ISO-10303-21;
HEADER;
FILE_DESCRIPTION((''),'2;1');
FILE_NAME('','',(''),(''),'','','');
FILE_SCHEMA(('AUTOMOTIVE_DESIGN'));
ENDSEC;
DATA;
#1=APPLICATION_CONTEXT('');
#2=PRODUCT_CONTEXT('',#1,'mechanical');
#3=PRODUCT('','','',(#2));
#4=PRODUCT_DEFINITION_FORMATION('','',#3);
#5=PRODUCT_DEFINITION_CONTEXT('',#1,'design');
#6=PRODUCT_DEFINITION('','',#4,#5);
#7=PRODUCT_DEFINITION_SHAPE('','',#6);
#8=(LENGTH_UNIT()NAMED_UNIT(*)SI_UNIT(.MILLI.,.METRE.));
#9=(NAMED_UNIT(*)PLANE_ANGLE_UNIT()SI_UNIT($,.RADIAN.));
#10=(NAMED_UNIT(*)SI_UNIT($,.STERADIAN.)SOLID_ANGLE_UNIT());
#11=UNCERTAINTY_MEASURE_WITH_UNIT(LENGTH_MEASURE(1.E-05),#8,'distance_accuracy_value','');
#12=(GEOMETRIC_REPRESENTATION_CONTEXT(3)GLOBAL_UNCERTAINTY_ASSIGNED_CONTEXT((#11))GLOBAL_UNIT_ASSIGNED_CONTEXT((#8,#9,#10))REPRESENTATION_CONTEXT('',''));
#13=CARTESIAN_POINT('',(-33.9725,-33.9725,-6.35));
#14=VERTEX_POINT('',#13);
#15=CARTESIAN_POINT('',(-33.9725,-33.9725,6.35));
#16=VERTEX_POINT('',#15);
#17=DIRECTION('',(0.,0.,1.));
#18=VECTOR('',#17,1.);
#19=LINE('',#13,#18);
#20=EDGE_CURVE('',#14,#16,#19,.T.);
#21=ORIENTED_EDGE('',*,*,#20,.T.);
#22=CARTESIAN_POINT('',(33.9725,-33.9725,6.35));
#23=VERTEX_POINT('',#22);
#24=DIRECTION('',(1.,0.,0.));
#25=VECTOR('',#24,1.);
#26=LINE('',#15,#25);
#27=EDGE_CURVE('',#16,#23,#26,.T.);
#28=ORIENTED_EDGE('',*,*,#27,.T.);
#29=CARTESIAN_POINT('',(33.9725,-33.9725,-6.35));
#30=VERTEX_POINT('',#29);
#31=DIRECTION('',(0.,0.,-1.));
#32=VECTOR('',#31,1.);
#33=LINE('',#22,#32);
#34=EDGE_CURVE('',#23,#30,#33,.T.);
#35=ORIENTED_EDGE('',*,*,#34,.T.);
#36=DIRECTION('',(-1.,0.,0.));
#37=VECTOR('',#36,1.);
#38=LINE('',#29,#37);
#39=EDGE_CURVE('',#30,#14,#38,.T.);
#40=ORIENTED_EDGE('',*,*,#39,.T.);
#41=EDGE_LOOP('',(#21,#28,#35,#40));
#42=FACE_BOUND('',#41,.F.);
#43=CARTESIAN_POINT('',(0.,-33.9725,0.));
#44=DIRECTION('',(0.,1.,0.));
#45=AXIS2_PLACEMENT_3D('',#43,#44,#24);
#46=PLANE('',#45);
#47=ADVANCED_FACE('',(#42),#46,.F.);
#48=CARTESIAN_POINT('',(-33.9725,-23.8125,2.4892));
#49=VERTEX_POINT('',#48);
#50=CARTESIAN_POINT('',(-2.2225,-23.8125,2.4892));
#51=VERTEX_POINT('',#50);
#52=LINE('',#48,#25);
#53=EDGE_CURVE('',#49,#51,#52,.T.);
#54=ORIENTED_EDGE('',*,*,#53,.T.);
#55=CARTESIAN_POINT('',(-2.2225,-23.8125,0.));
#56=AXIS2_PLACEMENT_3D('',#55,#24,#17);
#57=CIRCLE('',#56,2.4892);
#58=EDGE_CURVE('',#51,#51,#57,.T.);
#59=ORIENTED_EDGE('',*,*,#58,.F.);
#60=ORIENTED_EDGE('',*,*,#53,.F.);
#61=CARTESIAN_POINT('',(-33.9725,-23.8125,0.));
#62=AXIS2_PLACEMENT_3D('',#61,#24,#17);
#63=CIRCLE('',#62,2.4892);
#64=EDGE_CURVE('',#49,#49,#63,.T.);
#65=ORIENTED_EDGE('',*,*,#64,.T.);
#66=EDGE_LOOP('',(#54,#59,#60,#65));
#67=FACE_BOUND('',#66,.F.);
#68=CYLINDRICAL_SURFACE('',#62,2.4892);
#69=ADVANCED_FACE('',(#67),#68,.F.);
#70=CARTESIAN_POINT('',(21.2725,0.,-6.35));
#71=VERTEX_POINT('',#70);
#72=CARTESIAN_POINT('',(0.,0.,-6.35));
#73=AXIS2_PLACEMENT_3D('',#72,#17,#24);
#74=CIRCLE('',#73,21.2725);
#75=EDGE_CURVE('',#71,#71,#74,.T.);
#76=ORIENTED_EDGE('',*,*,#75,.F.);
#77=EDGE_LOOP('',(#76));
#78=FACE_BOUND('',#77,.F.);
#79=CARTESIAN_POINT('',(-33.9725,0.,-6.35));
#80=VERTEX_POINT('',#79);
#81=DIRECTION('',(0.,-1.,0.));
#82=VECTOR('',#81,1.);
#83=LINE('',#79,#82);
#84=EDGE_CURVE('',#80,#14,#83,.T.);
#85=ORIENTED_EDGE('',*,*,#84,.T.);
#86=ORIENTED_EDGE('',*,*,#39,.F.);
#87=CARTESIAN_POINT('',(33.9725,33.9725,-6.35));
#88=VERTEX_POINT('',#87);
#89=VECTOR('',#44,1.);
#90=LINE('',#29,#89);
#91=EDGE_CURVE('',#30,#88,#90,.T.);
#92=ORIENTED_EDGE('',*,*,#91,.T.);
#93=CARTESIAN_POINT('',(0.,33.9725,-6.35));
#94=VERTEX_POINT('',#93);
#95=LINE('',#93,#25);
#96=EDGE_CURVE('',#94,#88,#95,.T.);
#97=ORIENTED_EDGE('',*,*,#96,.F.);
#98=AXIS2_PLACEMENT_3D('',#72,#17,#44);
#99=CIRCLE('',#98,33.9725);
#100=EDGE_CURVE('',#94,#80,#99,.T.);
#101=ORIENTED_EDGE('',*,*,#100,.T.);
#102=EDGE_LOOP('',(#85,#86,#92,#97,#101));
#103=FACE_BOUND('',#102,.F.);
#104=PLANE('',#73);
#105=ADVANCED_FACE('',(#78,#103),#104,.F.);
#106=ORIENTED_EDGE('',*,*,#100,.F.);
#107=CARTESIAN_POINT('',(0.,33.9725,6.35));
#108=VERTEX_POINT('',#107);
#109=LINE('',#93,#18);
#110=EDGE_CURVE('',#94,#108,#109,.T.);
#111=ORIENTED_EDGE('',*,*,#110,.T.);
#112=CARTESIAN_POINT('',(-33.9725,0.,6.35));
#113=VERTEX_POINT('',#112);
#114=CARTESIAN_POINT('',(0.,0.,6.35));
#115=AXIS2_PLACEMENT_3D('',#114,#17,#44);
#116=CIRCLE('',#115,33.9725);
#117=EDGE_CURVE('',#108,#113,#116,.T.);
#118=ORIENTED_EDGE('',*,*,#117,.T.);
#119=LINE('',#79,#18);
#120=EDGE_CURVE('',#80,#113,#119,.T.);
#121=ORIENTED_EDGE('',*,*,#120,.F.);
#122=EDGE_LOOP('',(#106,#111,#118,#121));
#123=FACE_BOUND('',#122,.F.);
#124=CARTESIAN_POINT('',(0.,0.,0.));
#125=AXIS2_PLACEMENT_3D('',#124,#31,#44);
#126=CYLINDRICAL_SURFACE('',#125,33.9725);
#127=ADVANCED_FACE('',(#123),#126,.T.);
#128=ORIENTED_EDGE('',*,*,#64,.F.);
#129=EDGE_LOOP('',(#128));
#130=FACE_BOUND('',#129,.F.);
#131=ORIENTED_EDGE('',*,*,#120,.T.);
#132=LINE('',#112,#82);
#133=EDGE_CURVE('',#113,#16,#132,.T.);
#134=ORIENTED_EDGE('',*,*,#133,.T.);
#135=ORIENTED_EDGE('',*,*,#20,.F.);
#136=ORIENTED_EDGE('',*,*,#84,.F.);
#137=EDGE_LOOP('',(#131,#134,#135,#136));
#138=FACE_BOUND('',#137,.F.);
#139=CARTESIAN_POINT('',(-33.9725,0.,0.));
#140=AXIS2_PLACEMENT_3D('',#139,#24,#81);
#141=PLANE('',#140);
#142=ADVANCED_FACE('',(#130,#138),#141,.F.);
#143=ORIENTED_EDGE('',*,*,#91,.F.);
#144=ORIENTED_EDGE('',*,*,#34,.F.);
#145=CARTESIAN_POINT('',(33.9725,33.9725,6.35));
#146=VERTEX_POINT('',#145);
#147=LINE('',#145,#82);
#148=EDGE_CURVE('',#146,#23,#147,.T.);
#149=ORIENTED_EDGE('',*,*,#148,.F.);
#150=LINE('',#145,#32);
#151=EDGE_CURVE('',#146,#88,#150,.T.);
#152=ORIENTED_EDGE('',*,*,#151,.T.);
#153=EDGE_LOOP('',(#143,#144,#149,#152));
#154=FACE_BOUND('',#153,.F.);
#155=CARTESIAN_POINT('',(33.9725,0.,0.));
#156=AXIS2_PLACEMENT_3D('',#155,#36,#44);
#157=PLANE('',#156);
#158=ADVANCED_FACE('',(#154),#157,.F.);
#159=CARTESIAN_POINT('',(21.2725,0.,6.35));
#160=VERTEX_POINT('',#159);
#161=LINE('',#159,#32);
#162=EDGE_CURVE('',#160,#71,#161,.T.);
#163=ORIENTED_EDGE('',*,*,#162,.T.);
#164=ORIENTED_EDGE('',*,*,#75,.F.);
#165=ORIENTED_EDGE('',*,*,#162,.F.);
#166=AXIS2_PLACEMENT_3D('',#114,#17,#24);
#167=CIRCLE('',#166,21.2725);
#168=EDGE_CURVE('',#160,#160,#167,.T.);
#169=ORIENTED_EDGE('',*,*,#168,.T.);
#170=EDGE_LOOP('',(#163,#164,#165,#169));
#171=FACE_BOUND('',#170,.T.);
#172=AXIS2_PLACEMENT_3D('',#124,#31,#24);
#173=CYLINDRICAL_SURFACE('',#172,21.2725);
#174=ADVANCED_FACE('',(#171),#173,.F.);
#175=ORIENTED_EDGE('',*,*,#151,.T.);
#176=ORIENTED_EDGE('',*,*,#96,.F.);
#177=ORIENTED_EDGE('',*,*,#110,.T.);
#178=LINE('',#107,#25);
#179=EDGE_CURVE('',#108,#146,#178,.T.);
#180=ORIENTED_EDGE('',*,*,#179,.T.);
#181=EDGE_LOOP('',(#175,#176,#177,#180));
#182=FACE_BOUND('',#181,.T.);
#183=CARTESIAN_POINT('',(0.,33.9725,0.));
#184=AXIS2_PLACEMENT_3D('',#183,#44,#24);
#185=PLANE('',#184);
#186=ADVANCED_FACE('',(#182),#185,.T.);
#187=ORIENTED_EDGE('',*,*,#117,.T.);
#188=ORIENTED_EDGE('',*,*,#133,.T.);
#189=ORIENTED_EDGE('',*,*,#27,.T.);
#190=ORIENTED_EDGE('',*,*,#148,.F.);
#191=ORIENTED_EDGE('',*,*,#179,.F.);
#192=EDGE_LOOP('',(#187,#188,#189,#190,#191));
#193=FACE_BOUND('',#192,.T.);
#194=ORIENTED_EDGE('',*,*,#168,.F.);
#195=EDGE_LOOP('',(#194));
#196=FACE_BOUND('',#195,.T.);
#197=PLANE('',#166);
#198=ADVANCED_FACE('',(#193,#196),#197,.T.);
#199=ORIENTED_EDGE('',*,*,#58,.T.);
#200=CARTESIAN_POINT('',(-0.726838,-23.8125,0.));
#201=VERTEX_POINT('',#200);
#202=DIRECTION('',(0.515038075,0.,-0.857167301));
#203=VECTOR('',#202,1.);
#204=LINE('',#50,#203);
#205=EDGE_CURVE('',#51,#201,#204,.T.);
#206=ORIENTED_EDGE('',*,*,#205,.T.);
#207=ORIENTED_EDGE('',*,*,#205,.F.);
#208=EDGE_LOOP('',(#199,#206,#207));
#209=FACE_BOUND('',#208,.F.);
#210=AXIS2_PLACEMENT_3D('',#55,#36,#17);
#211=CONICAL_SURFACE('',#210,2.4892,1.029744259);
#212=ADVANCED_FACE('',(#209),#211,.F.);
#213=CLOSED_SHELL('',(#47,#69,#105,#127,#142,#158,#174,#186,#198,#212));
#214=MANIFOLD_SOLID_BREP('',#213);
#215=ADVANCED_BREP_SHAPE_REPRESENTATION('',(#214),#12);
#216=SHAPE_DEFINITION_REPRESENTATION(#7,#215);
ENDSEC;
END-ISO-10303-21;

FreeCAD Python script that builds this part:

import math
import FreeCAD as App
import Part
import Sketcher

V = App.Vector
Q = App.Units.Quantity

doc = App.newDocument("Part")
body = doc.addObject("PartDesign::Body", "Body")

sketch1 = body.newObject("Sketcher::SketchObject", "Sketch")
sketch1.AttachmentSupport = (doc.getObject("XY_Plane"), [""])
sketch1.MapMode = "FlatFace"
sketch1.addGeometry([
    Part.LineSegment(V(33.9725, 33.9725, 0), V(0, 33.9725, 0)),
    Part.ArcOfCircle(Part.Circle(V(0, 0, 0), V(0, 0, 1), 33.9725), math.radians(90), math.radians(180)),
    Part.LineSegment(V(-33.9725, 0, 0), V(-33.9725, -33.9725, 0)),
    Part.LineSegment(V(-33.9725, -33.9725, 0), V(33.9725, -33.9725, 0)),
    Part.LineSegment(V(33.9725, -33.9725, 0), V(33.9725, 33.9725, 0)),
    Part.Circle(V(0, 0, 0), V(0, 0, 1), 21.2725),
], False)
sketch1.addConstraint([
    Sketcher.Constraint("Tangent", 0, 2, 1, 1),
    Sketcher.Constraint("Tangent", 1, 2, 2, 1),
    Sketcher.Constraint("Coincident", 2, 2, 3, 1),
    Sketcher.Constraint("Coincident", 3, 2, 4, 1),
    Sketcher.Constraint("Coincident", 4, 2, 0, 1),
    Sketcher.Constraint("Horizontal", 0),
    Sketcher.Constraint("Vertical", 2),
    Sketcher.Constraint("Horizontal", 3),
    Sketcher.Constraint("Vertical", 4),
    Sketcher.Constraint("Coincident", 1, 3, -1, 1),
    Sketcher.Constraint("Coincident", 5, 3, -1, 1),
    Sketcher.Constraint("Symmetric", 2, 2, 4, 2, -1, 1),
    Sketcher.Constraint("Diameter", 5, Q("1.675 in")),
    Sketcher.Constraint("Radius", 1, Q("1.3375 in")),
])
pad1 = body.newObject("PartDesign::Pad", "Pad")
pad1.Profile = sketch1
pad1.Length = Q("0.5 in")
pad1.Midplane = True

sketch2 = body.newObject("Sketcher::SketchObject", "Sketch001")
sketch2.AttachmentSupport = (doc.getObject("YZ_Plane"), [""])
sketch2.MapMode = "FlatFace"
sketch2.AttachmentOffset = App.Placement(V(0, 0, -1.3375 * 25.4), App.Rotation())
sketch2.addGeometry(Part.Circle(V(-23.8125, 0, 0), V(0, 0, 1), 2.4892), False)
sketch2.addConstraint([
    Sketcher.Constraint("PointOnObject", 0, 3, -1),
    Sketcher.Constraint("Diameter", 0, Q("0.196 in")),
    Sketcher.Constraint("DistanceX", 0, 3, -1, 1, Q("0.9375 in")),
])
doc.recompute()
hole = body.newObject("PartDesign::Hole", "Hole")
hole.Profile = sketch2
hole.ThreadType = "None"
hole.Diameter = Q("0.196 in")
hole.DepthType = "Dimension"
hole.Depth = Q("1.25 in")
hole.DrillPoint = "Angled"
hole.DrillPointAngle = 118
hole.Reversed = True

doc.recompute()
